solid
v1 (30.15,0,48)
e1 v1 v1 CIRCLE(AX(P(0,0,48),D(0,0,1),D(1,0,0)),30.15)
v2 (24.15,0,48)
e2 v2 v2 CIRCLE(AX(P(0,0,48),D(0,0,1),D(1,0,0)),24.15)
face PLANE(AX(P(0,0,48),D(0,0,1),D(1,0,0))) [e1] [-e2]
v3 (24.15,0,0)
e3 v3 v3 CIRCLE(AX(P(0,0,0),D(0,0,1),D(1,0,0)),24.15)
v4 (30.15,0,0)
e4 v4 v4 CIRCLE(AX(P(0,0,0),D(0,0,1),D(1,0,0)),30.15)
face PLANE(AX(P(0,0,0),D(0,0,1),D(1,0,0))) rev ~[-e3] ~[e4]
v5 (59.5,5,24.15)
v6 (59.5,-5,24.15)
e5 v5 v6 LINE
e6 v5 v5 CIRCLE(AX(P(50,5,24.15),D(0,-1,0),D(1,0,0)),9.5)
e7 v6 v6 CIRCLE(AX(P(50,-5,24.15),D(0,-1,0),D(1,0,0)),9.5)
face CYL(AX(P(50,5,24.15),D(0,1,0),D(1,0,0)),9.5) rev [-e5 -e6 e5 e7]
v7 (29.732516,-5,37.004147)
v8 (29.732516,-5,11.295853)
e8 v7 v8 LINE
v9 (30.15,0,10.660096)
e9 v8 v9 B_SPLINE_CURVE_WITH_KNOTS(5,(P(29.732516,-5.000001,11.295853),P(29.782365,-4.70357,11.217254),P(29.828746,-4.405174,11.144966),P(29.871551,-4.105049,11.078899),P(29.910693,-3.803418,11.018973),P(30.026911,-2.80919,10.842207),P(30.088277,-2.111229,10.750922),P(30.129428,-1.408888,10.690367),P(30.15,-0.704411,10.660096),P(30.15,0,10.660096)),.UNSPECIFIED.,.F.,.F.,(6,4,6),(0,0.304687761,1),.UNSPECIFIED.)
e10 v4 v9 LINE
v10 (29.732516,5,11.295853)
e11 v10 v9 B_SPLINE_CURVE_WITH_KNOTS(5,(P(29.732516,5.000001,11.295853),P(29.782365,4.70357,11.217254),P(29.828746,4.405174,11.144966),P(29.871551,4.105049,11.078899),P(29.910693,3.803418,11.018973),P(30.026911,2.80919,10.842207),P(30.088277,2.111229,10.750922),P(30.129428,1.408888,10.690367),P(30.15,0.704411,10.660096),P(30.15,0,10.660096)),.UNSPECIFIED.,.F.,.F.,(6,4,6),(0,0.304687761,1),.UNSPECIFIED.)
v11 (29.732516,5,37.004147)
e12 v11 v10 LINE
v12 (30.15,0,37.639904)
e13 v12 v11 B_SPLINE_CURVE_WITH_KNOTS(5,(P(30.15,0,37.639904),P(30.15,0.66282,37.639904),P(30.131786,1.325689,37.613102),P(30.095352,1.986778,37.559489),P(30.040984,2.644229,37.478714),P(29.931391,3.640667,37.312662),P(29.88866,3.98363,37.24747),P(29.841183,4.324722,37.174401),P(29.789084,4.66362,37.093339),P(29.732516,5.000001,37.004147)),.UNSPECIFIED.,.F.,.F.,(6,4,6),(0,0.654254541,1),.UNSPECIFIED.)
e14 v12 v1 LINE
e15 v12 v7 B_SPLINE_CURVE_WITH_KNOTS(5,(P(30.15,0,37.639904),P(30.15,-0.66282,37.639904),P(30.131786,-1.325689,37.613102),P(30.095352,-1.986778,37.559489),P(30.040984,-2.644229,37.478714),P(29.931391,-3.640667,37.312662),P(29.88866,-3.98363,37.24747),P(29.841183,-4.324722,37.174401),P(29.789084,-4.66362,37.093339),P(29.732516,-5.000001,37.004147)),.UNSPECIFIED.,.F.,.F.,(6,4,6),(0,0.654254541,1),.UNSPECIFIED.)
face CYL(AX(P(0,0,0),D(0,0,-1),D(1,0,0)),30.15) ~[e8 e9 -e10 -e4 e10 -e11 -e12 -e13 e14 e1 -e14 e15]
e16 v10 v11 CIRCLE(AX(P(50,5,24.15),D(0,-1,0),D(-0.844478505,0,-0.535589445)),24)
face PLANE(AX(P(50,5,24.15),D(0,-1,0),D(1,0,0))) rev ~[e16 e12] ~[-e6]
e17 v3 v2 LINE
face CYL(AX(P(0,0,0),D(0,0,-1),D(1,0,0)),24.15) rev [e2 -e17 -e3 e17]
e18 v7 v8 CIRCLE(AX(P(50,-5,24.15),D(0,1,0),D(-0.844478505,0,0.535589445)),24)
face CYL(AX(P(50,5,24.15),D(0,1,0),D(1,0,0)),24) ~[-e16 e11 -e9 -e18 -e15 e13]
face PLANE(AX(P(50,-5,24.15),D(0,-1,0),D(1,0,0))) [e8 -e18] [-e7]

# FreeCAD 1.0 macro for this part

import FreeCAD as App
import Part
import Sketcher
from FreeCAD import Vector
Q = App.Units.Quantity

doc = App.newDocument("Part")
params = doc.addObject("Spreadsheet::Sheet", "Params")
for row, (alias, value) in enumerate([
    ("sketch1_diameter", "60.3 mm"),
    ("sketch1_diameter2", "48.3 mm"),
    ("pad1_length", "48 mm"),
    ("sketch2_diameter", "48 mm"),
    ("sketch2_diameter2", "19 mm"),
    ("pad2_length", "10 mm"),
], start=1):
    params.set(f"A{row}", alias)
    params.set(f"B{row}", "=" + value)
    params.setAlias(f"B{row}", alias)

body = doc.addObject("PartDesign::Body", "Body")

# Sketch on XY plane
sketch1 = body.newObject("Sketcher::SketchObject", "Sketch")
sketch1.AttachmentSupport = (doc.getObject("XY_Plane"), [""])
sketch1.MapMode = "FlatFace"
sketch1.addGeometry([
    Part.Circle(Vector(0, 0, 0), Vector(0, 0, 1), 30.15),
    Part.Circle(Vector(0, 0, 0), Vector(0, 0, 1), 24.15),
], False)
sketch1.addConstraint([
    Sketcher.Constraint("Coincident", 0, 3, -1, 1),
    Sketcher.Constraint("Coincident", 1, 3, -1, 1),
    Sketcher.Constraint("Diameter", 0, Q("60.3 mm")),
    Sketcher.Constraint("Diameter", 1, Q("48.3 mm")),
])
sketch1.setExpression("Constraints[2]", "Params.sketch1_diameter")
sketch1.setExpression("Constraints[3]", "Params.sketch1_diameter2")
pad1 = body.newObject("PartDesign::Pad", "Pad")
pad1.Profile = sketch1
pad1.setExpression("Length", "Params.pad1_length")

# Sketch on XZ plane
sketch2 = body.newObject("Sketcher::SketchObject", "Sketch001")
sketch2.AttachmentSupport = (doc.getObject("XZ_Plane"), [""])
sketch2.MapMode = "FlatFace"
sketch2.AttachmentOffset = App.Placement(Vector(0, 0, -5), App.Rotation())
sketch2.addGeometry([
    Part.Circle(Vector(50, 24.15, 0), Vector(0, 0, 1), 24),
    Part.Circle(Vector(50, 24.15, 0), Vector(0, 0, 1), 9.5),
], False)
sketch2.addConstraint([
    Sketcher.Constraint("Coincident", 1, 3, 0, 3),
    Sketcher.Constraint("Diameter", 0, Q("48 mm")),
    Sketcher.Constraint("Diameter", 1, Q("19 mm")),
    Sketcher.Constraint("DistanceX", -1, 1, 0, 3, Q("50 mm")),
    Sketcher.Constraint("DistanceY", -1, 1, 0, 3, Q("24.15 mm")),
])
sketch2.setExpression("Constraints[1]", "Params.sketch2_diameter")
sketch2.setExpression("Constraints[2]", "Params.sketch2_diameter2")
pad2 = body.newObject("PartDesign::Pad", "Pad001")
pad2.Profile = sketch2
pad2.setExpression("Length", "Params.pad2_length")

doc.recompute()
